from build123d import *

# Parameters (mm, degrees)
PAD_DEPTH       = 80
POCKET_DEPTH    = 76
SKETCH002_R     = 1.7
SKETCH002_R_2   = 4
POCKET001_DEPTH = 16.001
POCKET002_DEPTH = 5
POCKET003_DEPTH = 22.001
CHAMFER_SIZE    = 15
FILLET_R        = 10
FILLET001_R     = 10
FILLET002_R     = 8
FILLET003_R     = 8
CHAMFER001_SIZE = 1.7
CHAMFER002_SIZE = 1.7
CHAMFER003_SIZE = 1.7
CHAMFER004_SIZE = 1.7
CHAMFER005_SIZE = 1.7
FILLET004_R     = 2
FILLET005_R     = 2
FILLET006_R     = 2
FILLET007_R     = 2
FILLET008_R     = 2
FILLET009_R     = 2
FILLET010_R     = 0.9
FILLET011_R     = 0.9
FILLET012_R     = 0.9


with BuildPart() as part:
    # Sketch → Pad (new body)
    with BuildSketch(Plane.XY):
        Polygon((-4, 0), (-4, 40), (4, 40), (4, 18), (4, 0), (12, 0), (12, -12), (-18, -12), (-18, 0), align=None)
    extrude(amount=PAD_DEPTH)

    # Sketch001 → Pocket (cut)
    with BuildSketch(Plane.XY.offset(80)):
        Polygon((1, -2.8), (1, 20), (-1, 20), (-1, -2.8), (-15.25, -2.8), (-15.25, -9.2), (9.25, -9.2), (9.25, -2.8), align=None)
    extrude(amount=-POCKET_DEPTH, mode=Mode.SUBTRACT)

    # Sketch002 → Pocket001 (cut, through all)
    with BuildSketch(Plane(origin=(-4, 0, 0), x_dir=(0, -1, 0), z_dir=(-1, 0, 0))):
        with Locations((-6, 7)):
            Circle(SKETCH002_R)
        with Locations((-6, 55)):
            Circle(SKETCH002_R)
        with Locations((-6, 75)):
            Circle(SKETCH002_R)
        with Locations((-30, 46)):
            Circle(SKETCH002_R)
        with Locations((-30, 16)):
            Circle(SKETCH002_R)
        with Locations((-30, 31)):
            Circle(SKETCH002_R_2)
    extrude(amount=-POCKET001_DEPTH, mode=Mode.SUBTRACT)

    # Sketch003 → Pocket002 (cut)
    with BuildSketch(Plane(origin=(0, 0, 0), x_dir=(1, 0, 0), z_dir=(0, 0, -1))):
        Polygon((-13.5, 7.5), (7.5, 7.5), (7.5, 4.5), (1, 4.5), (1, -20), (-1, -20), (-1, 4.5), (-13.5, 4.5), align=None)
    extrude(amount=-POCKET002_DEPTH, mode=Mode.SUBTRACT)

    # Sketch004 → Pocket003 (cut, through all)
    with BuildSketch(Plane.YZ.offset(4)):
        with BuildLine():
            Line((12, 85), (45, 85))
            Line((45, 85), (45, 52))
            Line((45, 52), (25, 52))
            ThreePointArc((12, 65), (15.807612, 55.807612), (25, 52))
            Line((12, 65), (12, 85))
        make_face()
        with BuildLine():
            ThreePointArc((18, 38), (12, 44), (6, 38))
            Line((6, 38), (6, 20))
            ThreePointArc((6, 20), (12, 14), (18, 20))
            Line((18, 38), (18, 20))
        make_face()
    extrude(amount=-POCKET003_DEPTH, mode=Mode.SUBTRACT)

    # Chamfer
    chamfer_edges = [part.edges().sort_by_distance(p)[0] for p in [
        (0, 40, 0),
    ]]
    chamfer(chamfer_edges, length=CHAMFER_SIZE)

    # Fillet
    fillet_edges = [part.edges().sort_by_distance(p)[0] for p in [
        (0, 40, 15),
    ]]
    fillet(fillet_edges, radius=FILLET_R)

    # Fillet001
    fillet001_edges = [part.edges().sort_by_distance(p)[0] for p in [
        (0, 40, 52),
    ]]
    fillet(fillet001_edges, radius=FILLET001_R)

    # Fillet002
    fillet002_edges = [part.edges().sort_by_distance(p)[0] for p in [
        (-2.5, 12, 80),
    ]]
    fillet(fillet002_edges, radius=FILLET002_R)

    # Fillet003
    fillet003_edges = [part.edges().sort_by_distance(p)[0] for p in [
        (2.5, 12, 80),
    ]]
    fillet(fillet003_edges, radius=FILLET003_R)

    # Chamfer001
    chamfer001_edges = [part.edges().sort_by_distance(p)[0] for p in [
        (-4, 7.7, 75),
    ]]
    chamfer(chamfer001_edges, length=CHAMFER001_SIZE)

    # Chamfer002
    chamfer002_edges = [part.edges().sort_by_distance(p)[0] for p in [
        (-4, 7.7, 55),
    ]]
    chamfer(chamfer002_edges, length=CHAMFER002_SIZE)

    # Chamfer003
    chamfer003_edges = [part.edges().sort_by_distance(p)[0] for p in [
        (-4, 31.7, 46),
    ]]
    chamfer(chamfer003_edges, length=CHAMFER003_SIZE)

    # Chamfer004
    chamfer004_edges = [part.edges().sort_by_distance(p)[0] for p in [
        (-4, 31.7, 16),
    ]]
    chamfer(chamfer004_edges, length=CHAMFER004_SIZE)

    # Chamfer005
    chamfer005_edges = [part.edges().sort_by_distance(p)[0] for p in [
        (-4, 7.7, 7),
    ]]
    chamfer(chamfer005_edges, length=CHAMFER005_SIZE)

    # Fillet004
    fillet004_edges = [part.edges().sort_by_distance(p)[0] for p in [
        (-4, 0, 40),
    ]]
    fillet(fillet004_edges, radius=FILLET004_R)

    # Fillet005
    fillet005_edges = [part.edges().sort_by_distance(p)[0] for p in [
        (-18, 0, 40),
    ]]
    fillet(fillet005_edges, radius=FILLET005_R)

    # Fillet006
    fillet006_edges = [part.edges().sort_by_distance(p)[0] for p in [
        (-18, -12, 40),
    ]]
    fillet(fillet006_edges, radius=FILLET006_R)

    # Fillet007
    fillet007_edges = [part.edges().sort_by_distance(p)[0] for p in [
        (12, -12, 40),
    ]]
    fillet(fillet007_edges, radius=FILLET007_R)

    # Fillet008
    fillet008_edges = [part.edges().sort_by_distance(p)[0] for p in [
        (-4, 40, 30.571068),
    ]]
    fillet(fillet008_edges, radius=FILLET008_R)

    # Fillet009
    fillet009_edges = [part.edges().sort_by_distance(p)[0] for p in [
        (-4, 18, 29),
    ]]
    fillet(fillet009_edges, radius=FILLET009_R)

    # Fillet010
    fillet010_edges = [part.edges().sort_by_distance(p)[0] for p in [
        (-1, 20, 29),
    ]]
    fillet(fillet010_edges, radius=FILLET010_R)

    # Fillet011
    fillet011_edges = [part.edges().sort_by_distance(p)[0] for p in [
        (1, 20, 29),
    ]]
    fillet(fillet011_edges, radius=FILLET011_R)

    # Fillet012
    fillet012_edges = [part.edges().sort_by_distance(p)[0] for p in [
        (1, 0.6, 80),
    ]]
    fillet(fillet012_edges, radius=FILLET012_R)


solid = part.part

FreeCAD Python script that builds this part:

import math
import FreeCAD as App
import Part
import Sketcher


def edges_at(feature, points):
    """Names of the edges that pass closest to the given points."""
    edges = feature.Shape.Edges
    near = lambda p: min(range(len(edges)), key=lambda i: edges[i].distToShape(Part.Vertex(*p))[0])
    return sorted({f"Edge{near(p) + 1}" for p in points})

doc = App.newDocument("Part")
body = doc.addObject("PartDesign::Body", "Body")

# Sketch on XY plane
sketch1 = body.newObject("Sketcher::SketchObject", "Sketch")
sketch1.AttachmentSupport = (doc.getObject("XY_Plane"), [""])
sketch1.MapMode = "FlatFace"
sketch1.addGeometry(Part.LineSegment(App.Vector(-4, 40, 0), App.Vector(-4, 0, 0)), False)
sketch1.addGeometry(Part.LineSegment(App.Vector(-4, 0, 0), App.Vector(-18, 0, 0)), False)
sketch1.addGeometry(Part.LineSegment(App.Vector(-18, 0, 0), App.Vector(-18, -12, 0)), False)
sketch1.addGeometry(Part.LineSegment(App.Vector(-18, -12, 0), App.Vector(12, -12, 0)), False)
sketch1.addGeometry(Part.LineSegment(App.Vector(12, -12, 0), App.Vector(12, 0, 0)), False)
sketch1.addGeometry(Part.LineSegment(App.Vector(12, 0, 0), App.Vector(4, 0, 0)), False)
sketch1.addGeometry(Part.LineSegment(App.Vector(4, 0, 0), App.Vector(4, 40, 0)), False)
sketch1.addGeometry(Part.LineSegment(App.Vector(4, 40, 0), App.Vector(-4, 40, 0)), False)
sketch1.addConstraint(Sketcher.Constraint("Coincident", 0, 2, 1, 1))
sketch1.addConstraint(Sketcher.Constraint("Coincident", 1, 2, 2, 1))
sketch1.addConstraint(Sketcher.Constraint("Coincident", 2, 2, 3, 1))
sketch1.addConstraint(Sketcher.Constraint("Coincident", 3, 2, 4, 1))
sketch1.addConstraint(Sketcher.Constraint("Coincident", 4, 2, 5, 1))
sketch1.addConstraint(Sketcher.Constraint("Coincident", 5, 2, 6, 1))
sketch1.addConstraint(Sketcher.Constraint("Coincident", 6, 2, 7, 1))
sketch1.addConstraint(Sketcher.Constraint("Coincident", 7, 2, 0, 1))
sketch1.addConstraint(Sketcher.Constraint("Vertical", 0))
sketch1.addConstraint(Sketcher.Constraint("Horizontal", 1))
sketch1.addConstraint(Sketcher.Constraint("Vertical", 2))
sketch1.addConstraint(Sketcher.Constraint("Horizontal", 3))
sketch1.addConstraint(Sketcher.Constraint("Vertical", 4))
sketch1.addConstraint(Sketcher.Constraint("Horizontal", 5))
sketch1.addConstraint(Sketcher.Constraint("Vertical", 6))
sketch1.addConstraint(Sketcher.Constraint("Horizontal", 7))
sketch1.addConstraint(Sketcher.Constraint("Symmetric", 0, 2, 5, 2, -1, 1))
sketch1.addConstraint(Sketcher.Constraint("PointOnObject", 0, 2, -1))
sketch1.addConstraint(Sketcher.Constraint("Equal", 5, 7))
sketch1.addConstraint(Sketcher.Constraint("DistanceX", 1, 2, 1, 1, 14.0))
sketch1.addConstraint(Sketcher.Constraint("DistanceX", 3, 1, 3, 2, 30.0))
sketch1.addConstraint(Sketcher.Constraint("DistanceY", 0, 2, 0, 1, 40.0))
sketch1.addConstraint(Sketcher.Constraint("DistanceY", 2, 2, 2, 1, 12.0))
pad1 = body.newObject("PartDesign::Pad", "Pad")
pad1.Profile = sketch1
pad1.Length = 80

# Sketch on XY plane
sketch2 = body.newObject("Sketcher::SketchObject", "Sketch001")
sketch2.AttachmentSupport = (doc.getObject("XY_Plane"), [""])
sketch2.MapMode = "FlatFace"
sketch2.AttachmentOffset = App.Placement(App.Vector(0, 0, 80), App.Rotation())
sketch2.addGeometry(Part.LineSegment(App.Vector(1, -2.8, 0), App.Vector(1, 20, 0)), False)
sketch2.addGeometry(Part.LineSegment(App.Vector(1, 20, 0), App.Vector(-1, 20, 0)), False)
sketch2.addGeometry(Part.LineSegment(App.Vector(-1, 20, 0), App.Vector(-1, -2.8, 0)), False)
sketch2.addGeometry(Part.LineSegment(App.Vector(-1, -2.8, 0), App.Vector(-15.2, -2.8, 0)), False)
sketch2.addGeometry(Part.LineSegment(App.Vector(-15.2, -2.8, 0), App.Vector(-15.2, -9.2, 0)), False)
sketch2.addGeometry(Part.LineSegment(App.Vector(-15.2, -9.2, 0), App.Vector(9.2, -9.2, 0)), False)
sketch2.addGeometry(Part.LineSegment(App.Vector(9.2, -9.2, 0), App.Vector(9.2, -2.8, 0)), False)
sketch2.addGeometry(Part.LineSegment(App.Vector(9.2, -2.8, 0), App.Vector(1, -2.8, 0)), False)
sketch2.addConstraint(Sketcher.Constraint("Coincident", 0, 2, 1, 1))
sketch2.addConstraint(Sketcher.Constraint("Coincident", 1, 2, 2, 1))
sketch2.addConstraint(Sketcher.Constraint("Coincident", 2, 2, 3, 1))
sketch2.addConstraint(Sketcher.Constraint("Coincident", 3, 2, 4, 1))
sketch2.addConstraint(Sketcher.Constraint("Coincident", 4, 2, 5, 1))
sketch2.addConstraint(Sketcher.Constraint("Coincident", 5, 2, 6, 1))
sketch2.addConstraint(Sketcher.Constraint("Coincident", 6, 2, 7, 1))
sketch2.addConstraint(Sketcher.Constraint("Coincident", 7, 2, 0, 1))
sketch2.addConstraint(Sketcher.Constraint("Vertical", 0))
sketch2.addConstraint(Sketcher.Constraint("Horizontal", 1))
sketch2.addConstraint(Sketcher.Constraint("Vertical", 2))
sketch2.addConstraint(Sketcher.Constraint("Horizontal", 3))
sketch2.addConstraint(Sketcher.Constraint("Vertical", 4))
sketch2.addConstraint(Sketcher.Constraint("Horizontal", 5))
sketch2.addConstraint(Sketcher.Constraint("Vertical", 6))
sketch2.addConstraint(Sketcher.Constraint("Horizontal", 7))
sketch2.addConstraint(Sketcher.Constraint("Symmetric", 2, 2, 7, 2, -2))
sketch2.addConstraint(Sketcher.Constraint("DistanceX", 1, 2, 1, 1, 2.0))
sketch2.addConstraint(Sketcher.Constraint("DistanceX", 5, 1, 5, 2, 24.5))
sketch2.addConstraint(Sketcher.Constraint("DistanceY", 0, 1, 0, 2, 22.8))
sketch2.addConstraint(Sketcher.Constraint("DistanceY", 4, 2, 4, 1, 6.4))
sketch2.addConstraint(Sketcher.Constraint("DistanceY", -1, 1, 0, 2, 20.0))
sketch2.addConstraint(Sketcher.Constraint("DistanceX", 3, 2, 3, 1, 14.25))
pocket1 = body.newObject("PartDesign::Pocket", "Pocket")
pocket1.Profile = sketch2
pocket1.Length = 76

# Sketch on YZ plane
sketch3 = body.newObject("Sketcher::SketchObject", "Sketch002")
sketch3.AttachmentSupport = (doc.getObject("YZ_Plane"), [""])
sketch3.MapMode = "FlatFace"
sketch3.AttachmentOffset = App.Placement(App.Vector(0, 0, -4), App.Rotation())
sketch3.addGeometry(Part.Circle(App.Vector(6, 7, 0), App.Vector(0, 0, 1), 1.7), False)
sketch3.addGeometry(Part.Circle(App.Vector(6, 55, 0), App.Vector(0, 0, 1), 1.7), False)
sketch3.addGeometry(Part.Circle(App.Vector(6, 75, 0), App.Vector(0, 0, 1), 1.7), False)
sketch3.addGeometry(Part.Circle(App.Vector(30, 46, 0), App.Vector(0, 0, 1), 1.7), False)
sketch3.addGeometry(Part.Circle(App.Vector(30, 16, 0), App.Vector(0, 0, 1), 1.7), False)
sketch3.addGeometry(Part.Circle(App.Vector(30, 31, 0), App.Vector(0, 0, 1), 4), False)
sketch3.addConstraint(Sketcher.Constraint("Equal", 0, 1))
sketch3.addConstraint(Sketcher.Constraint("Equal", 1, 2))
sketch3.addConstraint(Sketcher.Constraint("Equal", 2, 3))
sketch3.addConstraint(Sketcher.Constraint("Equal", 3, 4))
sketch3.addConstraint(Sketcher.Constraint("Vertical", 0, 3, 1, 3))
sketch3.addConstraint(Sketcher.Constraint("Vertical", 1, 3, 2, 3))
sketch3.addConstraint(Sketcher.Constraint("Vertical", 3, 3, 4, 3))
sketch3.addConstraint(Sketcher.Constraint("Vertical", 4, 3, 5, 3))
sketch3.addConstraint(Sketcher.Constraint("Diameter", 5, 8.0))
sketch3.addConstraint(Sketcher.Constraint("Diameter", 0, 3.4))
sketch3.addConstraint(Sketcher.Constraint("DistanceX", -1, 1, 0, 3, 6.0))
sketch3.addConstraint(Sketcher.Constraint("DistanceY", -1, 1, 0, 3, 7.0))
sketch3.addConstraint(Sketcher.Constraint("DistanceY", -1, 1, 1, 3, 55.0))
sketch3.addConstraint(Sketcher.Constraint("DistanceY", -1, 1, 2, 3, 75.0))
sketch3.addConstraint(Sketcher.Constraint("DistanceX", -1, 1, 3, 3, 30.0))
sketch3.addConstraint(Sketcher.Constraint("DistanceY", -1, 1, 3, 3, 46.0))
sketch3.addConstraint(Sketcher.Constraint("DistanceY", -1, 1, 4, 3, 16.0))
sketch3.addConstraint(Sketcher.Constraint("DistanceY", -1, 1, 5, 3, 31.0))
pocket2 = body.newObject("PartDesign::Pocket", "Pocket001")
pocket2.Profile = sketch3
pocket2.Type = "ThroughAll"
pocket2.Reversed = True

# Sketch on XY plane
sketch4 = body.newObject("Sketcher::SketchObject", "Sketch003")
sketch4.AttachmentSupport = (doc.getObject("XY_Plane"), [""])
sketch4.MapMode = "FlatFace"
sketch4.addGeometry(Part.LineSegment(App.Vector(7.5, -7.5, 0), App.Vector(-13.5, -7.5, 0)), False)
sketch4.addGeometry(Part.LineSegment(App.Vector(-13.5, -7.5, 0), App.Vector(-13.5, -4.5, 0)), False)
sketch4.addGeometry(Part.LineSegment(App.Vector(-13.5, -4.5, 0), App.Vector(-1, -4.5, 0)), False)
sketch4.addGeometry(Part.LineSegment(App.Vector(-1, -4.5, 0), App.Vector(-1, 20, 0)), False)
sketch4.addGeometry(Part.LineSegment(App.Vector(-1, 20, 0), App.Vector(1, 20, 0)), False)
sketch4.addGeometry(Part.LineSegment(App.Vector(1, 20, 0), App.Vector(1, -4.5, 0)), False)
sketch4.addGeometry(Part.LineSegment(App.Vector(1, -4.5, 0), App.Vector(7.5, -4.5, 0)), False)
sketch4.addGeometry(Part.LineSegment(App.Vector(7.5, -4.5, 0), App.Vector(7.5, -7.5, 0)), False)
sketch4.addConstraint(Sketcher.Constraint("Coincident", 0, 2, 1, 1))
sketch4.addConstraint(Sketcher.Constraint("Coincident", 1, 2, 2, 1))
sketch4.addConstraint(Sketcher.Constraint("Coincident", 2, 2, 3, 1))
sketch4.addConstraint(Sketcher.Constraint("Coincident", 3, 2, 4, 1))
sketch4.addConstraint(Sketcher.Constraint("Coincident", 4, 2, 5, 1))
sketch4.addConstraint(Sketcher.Constraint("Coincident", 5, 2, 6, 1))
sketch4.addConstraint(Sketcher.Constraint("Coincident", 6, 2, 7, 1))
sketch4.addConstraint(Sketcher.Constraint("Coincident", 7, 2, 0, 1))
sketch4.addConstraint(Sketcher.Constraint("Horizontal", 0))
sketch4.addConstraint(Sketcher.Constraint("Vertical", 1))
sketch4.addConstraint(Sketcher.Constraint("Horizontal", 2))
sketch4.addConstraint(Sketcher.Constraint("Vertical", 3))
sketch4.addConstraint(Sketcher.Constraint("Horizontal", 4))
sketch4.addConstraint(Sketcher.Constraint("Vertical", 5))
sketch4.addConstraint(Sketcher.Constraint("Horizontal", 6))
sketch4.addConstraint(Sketcher.Constraint("Vertical", 7))
sketch4.addConstraint(Sketcher.Constraint("Symmetric", 2, 2, 5, 2, -2))
sketch4.addConstraint(Sketcher.Constraint("DistanceX", 0, 2, 0, 1, 21.0))
sketch4.addConstraint(Sketcher.Constraint("DistanceX", 4, 1, 4, 2, 2.0))
sketch4.addConstraint(Sketcher.Constraint("DistanceY", 1, 1, 1, 2, 3.0))
sketch4.addConstraint(Sketcher.Constraint("DistanceX", 2, 1, 2, 2, 12.5))
sketch4.addConstraint(Sketcher.Constraint("DistanceY", 3, 1, 3, 2, 24.5))
sketch4.addConstraint(Sketcher.Constraint("DistanceY", -1, 1, 3, 2, 20.0))
pocket3 = body.newObject("PartDesign::Pocket", "Pocket002")
pocket3.Profile = sketch4
pocket3.Length = 5
pocket3.Reversed = True

# Sketch on YZ plane
sketch5 = body.newObject("Sketcher::SketchObject", "Sketch004")
sketch5.AttachmentSupport = (doc.getObject("YZ_Plane"), [""])
sketch5.MapMode = "FlatFace"
sketch5.AttachmentOffset = App.Placement(App.Vector(0, 0, 4), App.Rotation())
sketch5.addGeometry(Part.LineSegment(App.Vector(45, 85, 0), App.Vector(12, 85, 0)), False)
sketch5.addGeometry(Part.LineSegment(App.Vector(12, 85, 0), App.Vector(12, 65, 0)), False)
sketch5.addGeometry(Part.ArcOfCircle(Part.Circle(App.Vector(25, 65, 0), App.Vector(0, 0, 1), 13), math.radians(-180), math.radians(-90)), False)
sketch5.addGeometry(Part.LineSegment(App.Vector(25, 52, 0), App.Vector(45, 52, 0)), False)
sketch5.addGeometry(Part.LineSegment(App.Vector(45, 52, 0), App.Vector(45, 85, 0)), False)
sketch5.addGeometry(Part.ArcOfCircle(Part.Circle(App.Vector(12, 38, 0), App.Vector(0, 0, 1), 6), math.radians(0), math.radians(180)), False)
sketch5.addGeometry(Part.LineSegment(App.Vector(6, 38, 0), App.Vector(6, 20, 0)), False)
sketch5.addGeometry(Part.ArcOfCircle(Part.Circle(App.Vector(12, 20, 0), App.Vector(0, 0, 1), 6), math.radians(180), math.radians(360)), False)
sketch5.addGeometry(Part.LineSegment(App.Vector(18, 20, 0), App.Vector(18, 38, 0)), False)
sketch5.addConstraint(Sketcher.Constraint("Coincident", 0, 2, 1, 1))
sketch5.addConstraint(Sketcher.Constraint("Tangent", 1, 2, 2, 1))
sketch5.addConstraint(Sketcher.Constraint("Tangent", 2, 2, 3, 1))
sketch5.addConstraint(Sketcher.Constraint("Coincident", 3, 2, 4, 1))
sketch5.addConstraint(Sketcher.Constraint("Coincident", 4, 2, 0, 1))
sketch5.addConstraint(Sketcher.Constraint("Tangent", 5, 2, 6, 1))
sketch5.addConstraint(Sketcher.Constraint("Tangent", 6, 2, 7, 1))
sketch5.addConstraint(Sketcher.Constraint("Tangent", 7, 2, 8, 1))
sketch5.addConstraint(Sketcher.Constraint("Tangent", 8, 2, 5, 1))
sketch5.addConstraint(Sketcher.Constraint("Horizontal", 0))
sketch5.addConstraint(Sketcher.Constraint("Vertical", 1))
sketch5.addConstraint(Sketcher.Constraint("Horizontal", 3))
sketch5.addConstraint(Sketcher.Constraint("Vertical", 4))
sketch5.addConstraint(Sketcher.Constraint("Vertical", 6))
sketch5.addConstraint(Sketcher.Constraint("Vertical", 8))
sketch5.addConstraint(Sketcher.Constraint("Vertical", 7, 3, 0, 2))
sketch5.addConstraint(Sketcher.Constraint("Equal", 3, 1))
sketch5.addConstraint(Sketcher.Constraint("Radius", 2, 13.000001))
sketch5.addConstraint(Sketcher.Constraint("Radius", 5, 6.0))
sketch5.addConstraint(Sketcher.Constraint("DistanceX", 0, 2, 0, 1, 33.0))
sketch5.addConstraint(Sketcher.Constraint("DistanceY", 6, 2, 6, 1, 18.0))
sketch5.addConstraint(Sketcher.Constraint("DistanceX", -1, 1, 2, 3, 25.000001))
sketch5.addConstraint(Sketcher.Constraint("DistanceY", -1, 1, 2, 3, 65.000001))
sketch5.addConstraint(Sketcher.Constraint("DistanceY", -1, 1, 5, 3, 38.0))
pocket4 = body.newObject("PartDesign::Pocket", "Pocket003")
pocket4.Profile = sketch5
pocket4.Type = "ThroughAll"
doc.recompute()

chamfer = body.newObject("PartDesign::Chamfer", "Chamfer")
chamfer.Base = (pocket4, edges_at(pocket4, [(0, 40, 0)]))
chamfer.Size = 15
doc.recompute()

fillet = body.newObject("PartDesign::Fillet", "Fillet")
fillet.Base = (chamfer, edges_at(chamfer, [(0, 40, 15)]))
fillet.Radius = 10
doc.recompute()

fillet2 = body.newObject("PartDesign::Fillet", "Fillet001")
fillet2.Base = (fillet, edges_at(fillet, [(0, 40, 52)]))
fillet2.Radius = 10
doc.recompute()

fillet3 = body.newObject("PartDesign::Fillet", "Fillet002")
fillet3.Base = (fillet2, edges_at(fillet2, [(-2.5, 12, 80)]))
fillet3.Radius = 8
doc.recompute()

fillet4 = body.newObject("PartDesign::Fillet", "Fillet003")
fillet4.Base = (fillet3, edges_at(fillet3, [(2.5, 12, 80)]))
fillet4.Radius = 8
doc.recompute()

chamfer2 = body.newObject("PartDesign::Chamfer", "Chamfer001")
chamfer2.Base = (fillet4, edges_at(fillet4, [(-4, 7.7, 75)]))
chamfer2.Size = 1.7
doc.recompute()

chamfer3 = body.newObject("PartDesign::Chamfer", "Chamfer002")
chamfer3.Base = (chamfer2, edges_at(chamfer2, [(-4, 7.7, 55)]))
chamfer3.Size = 1.7
doc.recompute()

chamfer4 = body.newObject("PartDesign::Chamfer", "Chamfer003")
chamfer4.Base = (chamfer3, edges_at(chamfer3, [(-4, 31.7, 46)]))
chamfer4.Size = 1.7
doc.recompute()

chamfer5 = body.newObject("PartDesign::Chamfer", "Chamfer004")
chamfer5.Base = (chamfer4, edges_at(chamfer4, [(-4, 31.7, 16)]))
chamfer5.Size = 1.7
doc.recompute()

chamfer6 = body.newObject("PartDesign::Chamfer", "Chamfer005")
chamfer6.Base = (chamfer5, edges_at(chamfer5, [(-4, 7.7, 7)]))
chamfer6.Size = 1.7
doc.recompute()

fillet5 = body.newObject("PartDesign::Fillet", "Fillet004")
fillet5.Base = (chamfer6, edges_at(chamfer6, [(-4, 0, 40)]))
fillet5.Radius = 2
doc.recompute()

fillet6 = body.newObject("PartDesign::Fillet", "Fillet005")
fillet6.Base = (fillet5, edges_at(fillet5, [(-18, 0, 40)]))
fillet6.Radius = 2
doc.recompute()

fillet7 = body.newObject("PartDesign::Fillet", "Fillet006")
fillet7.Base = (fillet6, edges_at(fillet6, [(-18, -12, 40)]))
fillet7.Radius = 2
doc.recompute()

fillet8 = body.newObject("PartDesign::Fillet", "Fillet007")
fillet8.Base = (fillet7, edges_at(fillet7, [(12, -12, 40)]))
fillet8.Radius = 2
doc.recompute()

fillet9 = body.newObject("PartDesign::Fillet", "Fillet008")
fillet9.Base = (fillet8, edges_at(fillet8, [(-4, 40, 30.571)]))
fillet9.Radius = 2
doc.recompute()

fillet10 = body.newObject("PartDesign::Fillet", "Fillet009")
fillet10.Base = (fillet9, edges_at(fillet9, [(-4, 18, 29)]))
fillet10.Radius = 2
doc.recompute()

fillet11 = body.newObject("PartDesign::Fillet", "Fillet010")
fillet11.Base = (fillet10, edges_at(fillet10, [(-1, 20, 26.5)]))
fillet11.Radius = 0.9
doc.recompute()

fillet12 = body.newObject("PartDesign::Fillet", "Fillet011")
fillet12.Base = (fillet11, edges_at(fillet11, [(1, 20, 26.5)]))
fillet12.Radius = 0.9
doc.recompute()

fillet13 = body.newObject("PartDesign::Fillet", "Fillet012")
fillet13.Base = (fillet12, edges_at(fillet12, [(1, 0.6, 80)]))
fillet13.Radius = 0.9

doc.recompute()
